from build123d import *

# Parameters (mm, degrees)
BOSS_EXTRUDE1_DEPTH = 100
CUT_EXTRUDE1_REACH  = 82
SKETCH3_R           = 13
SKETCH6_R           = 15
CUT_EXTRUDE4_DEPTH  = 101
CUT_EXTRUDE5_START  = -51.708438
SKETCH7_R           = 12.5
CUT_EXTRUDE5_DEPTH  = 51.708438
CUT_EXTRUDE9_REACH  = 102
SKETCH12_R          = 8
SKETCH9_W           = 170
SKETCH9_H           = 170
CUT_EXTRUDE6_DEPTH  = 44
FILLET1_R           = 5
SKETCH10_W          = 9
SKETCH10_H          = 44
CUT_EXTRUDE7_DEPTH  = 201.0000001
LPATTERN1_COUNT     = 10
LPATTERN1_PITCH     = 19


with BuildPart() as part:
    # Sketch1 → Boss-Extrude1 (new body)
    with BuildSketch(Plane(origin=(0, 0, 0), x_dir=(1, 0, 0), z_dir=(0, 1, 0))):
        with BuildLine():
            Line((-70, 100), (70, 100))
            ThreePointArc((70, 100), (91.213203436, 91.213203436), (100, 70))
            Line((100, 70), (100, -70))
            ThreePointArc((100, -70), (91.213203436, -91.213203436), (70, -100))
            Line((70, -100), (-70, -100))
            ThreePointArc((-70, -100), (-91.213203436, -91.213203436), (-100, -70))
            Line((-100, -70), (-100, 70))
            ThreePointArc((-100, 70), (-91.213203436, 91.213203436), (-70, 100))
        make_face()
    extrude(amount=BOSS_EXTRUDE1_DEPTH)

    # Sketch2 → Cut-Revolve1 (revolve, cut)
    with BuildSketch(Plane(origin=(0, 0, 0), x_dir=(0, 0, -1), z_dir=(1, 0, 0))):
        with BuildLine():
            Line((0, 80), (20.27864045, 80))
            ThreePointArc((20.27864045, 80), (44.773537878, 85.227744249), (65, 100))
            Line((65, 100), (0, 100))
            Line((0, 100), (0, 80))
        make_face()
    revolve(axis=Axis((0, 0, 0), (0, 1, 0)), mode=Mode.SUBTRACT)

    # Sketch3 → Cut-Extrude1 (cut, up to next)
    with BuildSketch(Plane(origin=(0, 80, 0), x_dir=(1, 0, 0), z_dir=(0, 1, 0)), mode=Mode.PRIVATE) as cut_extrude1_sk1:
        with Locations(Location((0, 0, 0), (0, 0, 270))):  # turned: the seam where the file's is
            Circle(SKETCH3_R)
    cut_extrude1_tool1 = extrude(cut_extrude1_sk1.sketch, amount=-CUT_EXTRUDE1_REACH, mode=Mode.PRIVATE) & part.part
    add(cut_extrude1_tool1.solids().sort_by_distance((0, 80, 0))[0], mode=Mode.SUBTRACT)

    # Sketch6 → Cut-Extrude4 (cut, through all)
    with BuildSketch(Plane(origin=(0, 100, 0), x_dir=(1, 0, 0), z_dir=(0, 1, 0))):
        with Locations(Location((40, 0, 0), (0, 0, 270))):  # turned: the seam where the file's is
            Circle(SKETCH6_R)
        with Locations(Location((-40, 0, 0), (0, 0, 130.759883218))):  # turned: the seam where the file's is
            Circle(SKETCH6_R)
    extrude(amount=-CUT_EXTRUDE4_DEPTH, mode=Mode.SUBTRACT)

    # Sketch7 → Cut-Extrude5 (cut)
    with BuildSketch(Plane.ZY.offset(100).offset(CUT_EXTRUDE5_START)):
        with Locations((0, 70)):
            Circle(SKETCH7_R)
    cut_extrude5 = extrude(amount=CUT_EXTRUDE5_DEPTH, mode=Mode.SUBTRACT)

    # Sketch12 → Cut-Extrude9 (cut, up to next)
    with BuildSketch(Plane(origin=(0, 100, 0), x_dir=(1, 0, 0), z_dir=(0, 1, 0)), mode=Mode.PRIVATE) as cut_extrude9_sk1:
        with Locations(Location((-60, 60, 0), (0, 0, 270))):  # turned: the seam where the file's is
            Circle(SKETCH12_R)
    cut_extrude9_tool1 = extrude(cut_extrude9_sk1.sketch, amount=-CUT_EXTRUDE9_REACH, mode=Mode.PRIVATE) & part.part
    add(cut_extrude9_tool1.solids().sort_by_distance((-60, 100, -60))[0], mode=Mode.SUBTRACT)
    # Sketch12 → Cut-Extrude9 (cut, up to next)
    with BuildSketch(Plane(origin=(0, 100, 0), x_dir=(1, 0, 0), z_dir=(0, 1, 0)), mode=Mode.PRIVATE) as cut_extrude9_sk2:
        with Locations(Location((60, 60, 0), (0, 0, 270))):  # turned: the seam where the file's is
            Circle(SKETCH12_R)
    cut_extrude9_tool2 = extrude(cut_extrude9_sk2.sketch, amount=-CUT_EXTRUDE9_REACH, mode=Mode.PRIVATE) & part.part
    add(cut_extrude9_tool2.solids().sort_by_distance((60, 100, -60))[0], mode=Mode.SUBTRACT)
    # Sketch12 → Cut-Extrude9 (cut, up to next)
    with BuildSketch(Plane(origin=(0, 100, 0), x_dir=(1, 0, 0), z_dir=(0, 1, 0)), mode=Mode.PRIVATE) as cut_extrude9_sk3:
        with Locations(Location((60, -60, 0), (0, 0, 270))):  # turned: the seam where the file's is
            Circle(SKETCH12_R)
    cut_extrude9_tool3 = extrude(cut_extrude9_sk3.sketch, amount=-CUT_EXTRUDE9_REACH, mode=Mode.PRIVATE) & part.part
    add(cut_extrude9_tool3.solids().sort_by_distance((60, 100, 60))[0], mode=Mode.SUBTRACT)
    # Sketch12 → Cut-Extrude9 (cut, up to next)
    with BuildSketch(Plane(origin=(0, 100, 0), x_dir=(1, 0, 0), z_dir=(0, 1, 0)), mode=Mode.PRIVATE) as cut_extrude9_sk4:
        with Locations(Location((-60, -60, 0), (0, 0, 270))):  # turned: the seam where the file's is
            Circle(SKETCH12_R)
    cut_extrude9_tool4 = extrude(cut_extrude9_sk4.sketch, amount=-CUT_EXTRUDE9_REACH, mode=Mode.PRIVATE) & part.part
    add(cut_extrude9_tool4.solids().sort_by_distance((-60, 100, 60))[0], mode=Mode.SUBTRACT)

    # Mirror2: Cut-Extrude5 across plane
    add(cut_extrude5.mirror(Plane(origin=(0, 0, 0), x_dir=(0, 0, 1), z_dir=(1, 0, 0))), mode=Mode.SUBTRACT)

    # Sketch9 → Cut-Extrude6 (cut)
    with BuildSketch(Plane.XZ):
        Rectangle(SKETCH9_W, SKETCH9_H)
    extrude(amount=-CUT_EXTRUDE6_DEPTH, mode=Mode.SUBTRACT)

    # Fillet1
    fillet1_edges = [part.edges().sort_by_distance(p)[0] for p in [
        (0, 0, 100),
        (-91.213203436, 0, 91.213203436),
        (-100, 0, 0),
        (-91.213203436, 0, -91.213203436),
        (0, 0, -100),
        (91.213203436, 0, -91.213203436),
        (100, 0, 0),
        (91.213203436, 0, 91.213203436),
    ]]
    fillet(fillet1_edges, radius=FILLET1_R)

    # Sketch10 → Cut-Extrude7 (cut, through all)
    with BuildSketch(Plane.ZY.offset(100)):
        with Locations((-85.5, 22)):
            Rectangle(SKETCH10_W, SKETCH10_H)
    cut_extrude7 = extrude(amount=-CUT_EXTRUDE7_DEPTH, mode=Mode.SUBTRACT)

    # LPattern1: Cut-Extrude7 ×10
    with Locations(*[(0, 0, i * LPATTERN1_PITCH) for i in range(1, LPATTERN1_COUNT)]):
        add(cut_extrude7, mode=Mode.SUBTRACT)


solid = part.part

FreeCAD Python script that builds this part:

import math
import FreeCAD as App
import Part
import Sketcher


def edges_at(feature, points):
    """Names of the edges that pass closest to the given points."""
    edges = feature.Shape.Edges
    near = lambda p: min(range(len(edges)), key=lambda i: edges[i].distToShape(Part.Vertex(*p))[0])
    return sorted({f"Edge{near(p) + 1}" for p in points})

doc = App.newDocument("Part")
params = doc.addObject("Spreadsheet::Sheet", "Params")
for row, (alias, value) in enumerate([
    ("sketch1_radius", "30 mm"),
    ("sketch1_width", "140 mm"),
    ("pad1_length", "100 mm"),
    ("sketch2_radius", "60 mm"),
    ("sketch2_width", "20 mm"),
    ("sketch2_height", "65 mm"),
    ("groove_angle", "360 deg"),
    ("sketch3_diameter", "26 mm"),
    ("sketch4_diameter", "30 mm"),
    ("sketch5_diameter", "25 mm"),
    ("pocket3_length", "51.708438 mm"),
    ("sketch6_diameter", "16 mm"),
    ("sketch7_diameter", "16 mm"),
    ("sketch8_diameter", "16 mm"),
    ("sketch9_diameter", "16 mm"),
    ("sketch10_width", "170 mm"),
    ("pocket8_length", "44 mm"),
    ("fillet_radius", "5 mm"),
    ("sketch11_width", "44 mm"),
    ("sketch11_height", "9 mm"),
    ("linearpattern_pitch", "19 mm"),
], start=1):
    params.set(f"A{row}", alias)
    params.set(f"B{row}", "=" + value)
    params.setAlias(f"B{row}", alias)

body = doc.addObject("PartDesign::Body", "Body")

sketch1 = body.newObject("Sketcher::SketchObject", "Sketch")
sketch1.AttachmentSupport = (doc.getObject("XZ_Plane"), [""])
sketch1.MapMode = "FlatFace"
sketch1.addGeometry([
    Part.LineSegment(App.Vector(70, -100, 0), App.Vector(-70, -100, 0)),
    Part.ArcOfCircle(Part.Circle(App.Vector(-70, -70, 0), App.Vector(0, 0, 1), 30), math.radians(180), math.radians(270)),
    Part.LineSegment(App.Vector(-100, -70, 0), App.Vector(-100, 70, 0)),
    Part.ArcOfCircle(Part.Circle(App.Vector(-70, 70, 0), App.Vector(0, 0, 1), 30), math.radians(90), math.radians(180)),
    Part.LineSegment(App.Vector(-70, 100, 0), App.Vector(70, 100, 0)),
    Part.ArcOfCircle(Part.Circle(App.Vector(70, 70, 0), App.Vector(0, 0, 1), 30), math.radians(0), math.radians(90)),
    Part.LineSegment(App.Vector(100, 70, 0), App.Vector(100, -70, 0)),
    Part.ArcOfCircle(Part.Circle(App.Vector(70, -70, 0), App.Vector(0, 0, 1), 30), math.radians(-90), math.radians(0)),
], False)
sketch1.addConstraint([
    Sketcher.Constraint("Tangent", 0, 2, 1, 2),
    Sketcher.Constraint("Tangent", 1, 1, 2, 1),
    Sketcher.Constraint("Tangent", 2, 2, 3, 2),
    Sketcher.Constraint("Tangent", 3, 1, 4, 1),
    Sketcher.Constraint("Tangent", 4, 2, 5, 2),
    Sketcher.Constraint("Tangent", 5, 1, 6, 1),
    Sketcher.Constraint("Tangent", 6, 2, 7, 2),
    Sketcher.Constraint("Tangent", 7, 1, 0, 1),
    Sketcher.Constraint("Horizontal", 0),
    Sketcher.Constraint("Vertical", 2),
    Sketcher.Constraint("Horizontal", 4),
    Sketcher.Constraint("Vertical", 6),
    Sketcher.Constraint("Equal", 1, 3),
    Sketcher.Constraint("Equal", 3, 5),
    Sketcher.Constraint("Equal", 5, 7),
    Sketcher.Constraint("Symmetric", 1, 3, 5, 3, -1, 1),
    Sketcher.Constraint("Equal", 4, 2),
    Sketcher.Constraint("Radius", 1, 30.0),
    Sketcher.Constraint("DistanceX", 0, 2, 0, 1, 140.0),
])
sketch1.setExpression("Constraints[17]", "Params.sketch1_radius")
sketch1.setExpression("Constraints[18]", "Params.sketch1_width")
pad1 = body.newObject("PartDesign::Pad", "Pad")
pad1.Profile = sketch1
pad1.setExpression("Length", "Params.pad1_length")
pad1.Reversed = True

sketch2 = body.newObject("Sketcher::SketchObject", "Sketch001")
sketch2.AttachmentSupport = (doc.getObject("YZ_Plane"), [""])
sketch2.MapMode = "FlatFace"
sketch2.addGeometry([
    Part.LineSegment(App.Vector(80, 0, 0), App.Vector(80, -20, 0)),
    Part.ArcOfCircle(Part.Circle(App.Vector(140, -20, 0), App.Vector(0, 0, 1), 60), math.radians(180), math.radians(228)),
    Part.LineSegment(App.Vector(100, -65, 0), App.Vector(100, 0, 0)),
    Part.LineSegment(App.Vector(100, 0, 0), App.Vector(80, 0, 0)),
], False)
sketch2.addConstraint([
    Sketcher.Constraint("Tangent", 0, 2, 1, 1),
    Sketcher.Constraint("Coincident", 1, 2, 2, 1),
    Sketcher.Constraint("Coincident", 2, 2, 3, 1),
    Sketcher.Constraint("Coincident", 3, 2, 0, 1),
    Sketcher.Constraint("Vertical", 0),
    Sketcher.Constraint("Vertical", 2),
    Sketcher.Constraint("Horizontal", 3),
    Sketcher.Constraint("PointOnObject", 2, 2, -1),
    Sketcher.Constraint("Radius", 1, 60.0),
    Sketcher.Constraint("DistanceX", 3, 2, 3, 1, 20.0),
    Sketcher.Constraint("DistanceY", 2, 1, 2, 2, 65.0),
    Sketcher.Constraint("DistanceX", -1, 1, 1, 3, 140.0),
])
sketch2.setExpression("Constraints[8]", "Params.sketch2_radius")
sketch2.setExpression("Constraints[9]", "Params.sketch2_width")
sketch2.setExpression("Constraints[10]", "Params.sketch2_height")
groove = body.newObject("PartDesign::Groove", "Groove")
groove.Profile = sketch2
groove.ReferenceAxis = (sketch2, ["H_Axis"])
groove.setExpression("Angle", "Params.groove_angle")

sketch3 = body.newObject("Sketcher::SketchObject", "Sketch002")
sketch3.AttachmentSupport = (doc.getObject("XZ_Plane"), [""])
sketch3.MapMode = "FlatFace"
sketch3.AttachmentOffset = App.Placement(App.Vector(0, 0, -80), App.Rotation())
sketch3.addGeometry(Part.Circle(App.Vector(0, 0, 0), App.Vector(0, 0, 1), 13), False)
sketch3.addConstraint([
    Sketcher.Constraint("Coincident", 0, 3, -1, 1),
    Sketcher.Constraint("Diameter", 0, 26.0),
])
sketch3.setExpression("Constraints[1]", "Params.sketch3_diameter")
pocket1 = body.newObject("PartDesign::Pocket", "Pocket")
pocket1.Profile = sketch3
pocket1.Type = "UpToFirst"
pocket1.Reversed = True

sketch4 = body.newObject("Sketcher::SketchObject", "Sketch003")
sketch4.AttachmentSupport = (doc.getObject("XZ_Plane"), [""])
sketch4.MapMode = "FlatFace"
sketch4.AttachmentOffset = App.Placement(App.Vector(0, 0, -100), App.Rotation())
sketch4.addGeometry([
    Part.Circle(App.Vector(40, 0, 0), App.Vector(0, 0, 1), 15),
    Part.Circle(App.Vector(-40, 0, 0), App.Vector(0, 0, 1), 15),
], False)
sketch4.addConstraint([
    Sketcher.Constraint("Equal", 0, 1),
    Sketcher.Constraint("Symmetric", 0, 3, 1, 3, -1, 1),
    Sketcher.Constraint("PointOnObject", 0, 3, -1),
    Sketcher.Constraint("Diameter", 0, 30.0),
    Sketcher.Constraint("DistanceX", -1, 1, 0, 3, 40.0),
])
sketch4.setExpression("Constraints[3]", "Params.sketch4_diameter")
pocket2 = body.newObject("PartDesign::Pocket", "Pocket001")
pocket2.Profile = sketch4
pocket2.Type = "ThroughAll"
pocket2.Reversed = True

sketch5 = body.newObject("Sketcher::SketchObject", "Sketch004")
sketch5.AttachmentSupport = (doc.getObject("YZ_Plane"), [""])
sketch5.MapMode = "FlatFace"
sketch5.AttachmentOffset = App.Placement(App.Vector(0, 0, -48.291562), App.Rotation())
sketch5.addGeometry(Part.Circle(App.Vector(70, 0, 0), App.Vector(0, 0, 1), 12), False)
sketch5.addConstraint([
    Sketcher.Constraint("PointOnObject", 0, 3, -1),
    Sketcher.Constraint("Diameter", 0, 25.0),
    Sketcher.Constraint("DistanceX", -1, 1, 0, 3, 70.0),
])
sketch5.setExpression("Constraints[1]", "Params.sketch5_diameter")
pocket3 = body.newObject("PartDesign::Pocket", "Pocket002")
pocket3.Profile = sketch5
pocket3.setExpression("Length", "Params.pocket3_length")

sketch6 = body.newObject("Sketcher::SketchObject", "Sketch005")
sketch6.AttachmentSupport = (doc.getObject("XZ_Plane"), [""])
sketch6.MapMode = "FlatFace"
sketch6.AttachmentOffset = App.Placement(App.Vector(0, 0, -100), App.Rotation())
sketch6.addGeometry(Part.Circle(App.Vector(-60, -60, 0), App.Vector(0, 0, 1), 8), False)
sketch6.addConstraint([
    Sketcher.Constraint("Diameter", 0, 16.0),
    Sketcher.Constraint("DistanceX", 0, 3, -1, 1, 60.0),
    Sketcher.Constraint("DistanceY", 0, 3, -1, 1, 60.0),
])
sketch6.setExpression("Constraints[0]", "Params.sketch6_diameter")
pocket4 = body.newObject("PartDesign::Pocket", "Pocket003")
pocket4.Profile = sketch6
pocket4.Type = "UpToFirst"
pocket4.Reversed = True

sketch7 = body.newObject("Sketcher::SketchObject", "Sketch006")
sketch7.AttachmentSupport = (doc.getObject("XZ_Plane"), [""])
sketch7.MapMode = "FlatFace"
sketch7.AttachmentOffset = App.Placement(App.Vector(0, 0, -100), App.Rotation())
sketch7.addGeometry(Part.Circle(App.Vector(60, -60, 0), App.Vector(0, 0, 1), 8), False)
sketch7.addConstraint([
    Sketcher.Constraint("Diameter", 0, 16.0),
    Sketcher.Constraint("DistanceX", -1, 1, 0, 3, 60.0),
    Sketcher.Constraint("DistanceY", 0, 3, -1, 1, 60.0),
])
sketch7.setExpression("Constraints[0]", "Params.sketch7_diameter")
pocket5 = body.newObject("PartDesign::Pocket", "Pocket004")
pocket5.Profile = sketch7
pocket5.Type = "UpToFirst"
pocket5.Reversed = True

sketch8 = body.newObject("Sketcher::SketchObject", "Sketch007")
sketch8.AttachmentSupport = (doc.getObject("XZ_Plane"), [""])
sketch8.MapMode = "FlatFace"
sketch8.AttachmentOffset = App.Placement(App.Vector(0, 0, -100), App.Rotation())
sketch8.addGeometry(Part.Circle(App.Vector(60, 60, 0), App.Vector(0, 0, 1), 8), False)
sketch8.addConstraint([
    Sketcher.Constraint("Diameter", 0, 16.0),
    Sketcher.Constraint("DistanceX", -1, 1, 0, 3, 60.0),
    Sketcher.Constraint("DistanceY", -1, 1, 0, 3, 60.0),
])
sketch8.setExpression("Constraints[0]", "Params.sketch8_diameter")
pocket6 = body.newObject("PartDesign::Pocket", "Pocket005")
pocket6.Profile = sketch8
pocket6.Type = "UpToFirst"
pocket6.Reversed = True

sketch9 = body.newObject("Sketcher::SketchObject", "Sketch008")
sketch9.AttachmentSupport = (doc.getObject("XZ_Plane"), [""])
sketch9.MapMode = "FlatFace"
sketch9.AttachmentOffset = App.Placement(App.Vector(0, 0, -100), App.Rotation())
sketch9.addGeometry(Part.Circle(App.Vector(-60, 60, 0), App.Vector(0, 0, 1), 8), False)
sketch9.addConstraint([
    Sketcher.Constraint("Diameter", 0, 16.0),
    Sketcher.Constraint("DistanceX", 0, 3, -1, 1, 60.0),
    Sketcher.Constraint("DistanceY", -1, 1, 0, 3, 60.0),
])
sketch9.setExpression("Constraints[0]", "Params.sketch9_diameter")
pocket7 = body.newObject("PartDesign::Pocket", "Pocket006")
pocket7.Profile = sketch9
pocket7.Type = "UpToFirst"
pocket7.Reversed = True
doc.recompute()

mirrored = body.newObject("PartDesign::Mirrored", "Mirrored")
mirrored.Originals = [pocket3]
mirrored.MirrorPlane = (doc.getObject("YZ_Plane"), [""])
body.Tip = mirrored

sketch10 = body.newObject("Sketcher::SketchObject", "Sketch009")
sketch10.AttachmentSupport = (doc.getObject("XZ_Plane"), [""])
sketch10.MapMode = "FlatFace"
sketch10.addGeometry([
    Part.LineSegment(App.Vector(-85, 85, 0), App.Vector(-85, -85, 0)),
    Part.LineSegment(App.Vector(-85, -85, 0), App.Vector(85, -85, 0)),
    Part.LineSegment(App.Vector(85, -85, 0), App.Vector(85, 85, 0)),
    Part.LineSegment(App.Vector(85, 85, 0), App.Vector(-85, 85, 0)),
], False)
sketch10.addConstraint([
    Sketcher.Constraint("Coincident", 0, 2, 1, 1),
    Sketcher.Constraint("Coincident", 1, 2, 2, 1),
    Sketcher.Constraint("Coincident", 2, 2, 3, 1),
    Sketcher.Constraint("Coincident", 3, 2, 0, 1),
    Sketcher.Constraint("Vertical", 0),
    Sketcher.Constraint("Horizontal", 1),
    Sketcher.Constraint("Vertical", 2),
    Sketcher.Constraint("Horizontal", 3),
    Sketcher.Constraint("Symmetric", 0, 2, 2, 2, -1, 1),
    Sketcher.Constraint("Equal", 3, 0),
    Sketcher.Constraint("DistanceX", 1, 1, 1, 2, 170.0),
])
sketch10.setExpression("Constraints[10]", "Params.sketch10_width")
pocket8 = body.newObject("PartDesign::Pocket", "Pocket007")
pocket8.Profile = sketch10
pocket8.setExpression("Length", "Params.pocket8_length")
doc.recompute()

fillet = body.newObject("PartDesign::Fillet", "Fillet")
fillet.Base = (pocket8, edges_at(pocket8, [
    (0, 0, 100),
    (-91.213, 0, 91.213),
    (-100, 0, 0),
    (-91.213, 0, -91.213),
    (0, 0, -100),
    (91.213, 0, -91.213),
    (100, 0, 0),
    (91.213, 0, 91.213),
]))
fillet.setExpression("Radius", "Params.fillet_radius")

sketch11 = body.newObject("Sketcher::SketchObject", "Sketch010")
sketch11.AttachmentSupport = (doc.getObject("YZ_Plane"), [""])
sketch11.MapMode = "FlatFace"
sketch11.AttachmentOffset = App.Placement(App.Vector(0, 0, -100), App.Rotation())
sketch11.addGeometry([
    Part.LineSegment(App.Vector(44, -90, 0), App.Vector(0, -90, 0)),
    Part.LineSegment(App.Vector(0, -90, 0), App.Vector(0, -81, 0)),
    Part.LineSegment(App.Vector(0, -81, 0), App.Vector(44, -81, 0)),
    Part.LineSegment(App.Vector(44, -81, 0), App.Vector(44, -90, 0)),
], False)
sketch11.addConstraint([
    Sketcher.Constraint("Coincident", 0, 2, 1, 1),
    Sketcher.Constraint("Coincident", 1, 2, 2, 1),
    Sketcher.Constraint("Coincident", 2, 2, 3, 1),
    Sketcher.Constraint("Coincident", 3, 2, 0, 1),
    Sketcher.Constraint("Horizontal", 0),
    Sketcher.Constraint("Vertical", 1),
    Sketcher.Constraint("Horizontal", 2),
    Sketcher.Constraint("Vertical", 3),
    Sketcher.Constraint("PointOnObject", 0, 2, -2),
    Sketcher.Constraint("DistanceX", 0, 2, 0, 1, 44.0),
    Sketcher.Constraint("DistanceY", 1, 1, 1, 2, 9.0),
    Sketcher.Constraint("DistanceY", 0, 2, -1, 1, 90.0),
])
sketch11.setExpression("Constraints[9]", "Params.sketch11_width")
sketch11.setExpression("Constraints[10]", "Params.sketch11_height")
pocket9 = body.newObject("PartDesign::Pocket", "Pocket008")
pocket9.Profile = sketch11
pocket9.Type = "ThroughAll"
pocket9.Reversed = True
doc.recompute()

linearpattern = body.newObject("PartDesign::LinearPattern", "LinearPattern")
linearpattern.Originals = [pocket9]
linearpattern.Direction = (doc.getObject("Z_Axis"), [""])
linearpattern.Mode = "offset"
linearpattern.setExpression("Offset", "Params.linearpattern_pitch")
linearpattern.Occurrences = 10
body.Tip = linearpattern

doc.recompute()
